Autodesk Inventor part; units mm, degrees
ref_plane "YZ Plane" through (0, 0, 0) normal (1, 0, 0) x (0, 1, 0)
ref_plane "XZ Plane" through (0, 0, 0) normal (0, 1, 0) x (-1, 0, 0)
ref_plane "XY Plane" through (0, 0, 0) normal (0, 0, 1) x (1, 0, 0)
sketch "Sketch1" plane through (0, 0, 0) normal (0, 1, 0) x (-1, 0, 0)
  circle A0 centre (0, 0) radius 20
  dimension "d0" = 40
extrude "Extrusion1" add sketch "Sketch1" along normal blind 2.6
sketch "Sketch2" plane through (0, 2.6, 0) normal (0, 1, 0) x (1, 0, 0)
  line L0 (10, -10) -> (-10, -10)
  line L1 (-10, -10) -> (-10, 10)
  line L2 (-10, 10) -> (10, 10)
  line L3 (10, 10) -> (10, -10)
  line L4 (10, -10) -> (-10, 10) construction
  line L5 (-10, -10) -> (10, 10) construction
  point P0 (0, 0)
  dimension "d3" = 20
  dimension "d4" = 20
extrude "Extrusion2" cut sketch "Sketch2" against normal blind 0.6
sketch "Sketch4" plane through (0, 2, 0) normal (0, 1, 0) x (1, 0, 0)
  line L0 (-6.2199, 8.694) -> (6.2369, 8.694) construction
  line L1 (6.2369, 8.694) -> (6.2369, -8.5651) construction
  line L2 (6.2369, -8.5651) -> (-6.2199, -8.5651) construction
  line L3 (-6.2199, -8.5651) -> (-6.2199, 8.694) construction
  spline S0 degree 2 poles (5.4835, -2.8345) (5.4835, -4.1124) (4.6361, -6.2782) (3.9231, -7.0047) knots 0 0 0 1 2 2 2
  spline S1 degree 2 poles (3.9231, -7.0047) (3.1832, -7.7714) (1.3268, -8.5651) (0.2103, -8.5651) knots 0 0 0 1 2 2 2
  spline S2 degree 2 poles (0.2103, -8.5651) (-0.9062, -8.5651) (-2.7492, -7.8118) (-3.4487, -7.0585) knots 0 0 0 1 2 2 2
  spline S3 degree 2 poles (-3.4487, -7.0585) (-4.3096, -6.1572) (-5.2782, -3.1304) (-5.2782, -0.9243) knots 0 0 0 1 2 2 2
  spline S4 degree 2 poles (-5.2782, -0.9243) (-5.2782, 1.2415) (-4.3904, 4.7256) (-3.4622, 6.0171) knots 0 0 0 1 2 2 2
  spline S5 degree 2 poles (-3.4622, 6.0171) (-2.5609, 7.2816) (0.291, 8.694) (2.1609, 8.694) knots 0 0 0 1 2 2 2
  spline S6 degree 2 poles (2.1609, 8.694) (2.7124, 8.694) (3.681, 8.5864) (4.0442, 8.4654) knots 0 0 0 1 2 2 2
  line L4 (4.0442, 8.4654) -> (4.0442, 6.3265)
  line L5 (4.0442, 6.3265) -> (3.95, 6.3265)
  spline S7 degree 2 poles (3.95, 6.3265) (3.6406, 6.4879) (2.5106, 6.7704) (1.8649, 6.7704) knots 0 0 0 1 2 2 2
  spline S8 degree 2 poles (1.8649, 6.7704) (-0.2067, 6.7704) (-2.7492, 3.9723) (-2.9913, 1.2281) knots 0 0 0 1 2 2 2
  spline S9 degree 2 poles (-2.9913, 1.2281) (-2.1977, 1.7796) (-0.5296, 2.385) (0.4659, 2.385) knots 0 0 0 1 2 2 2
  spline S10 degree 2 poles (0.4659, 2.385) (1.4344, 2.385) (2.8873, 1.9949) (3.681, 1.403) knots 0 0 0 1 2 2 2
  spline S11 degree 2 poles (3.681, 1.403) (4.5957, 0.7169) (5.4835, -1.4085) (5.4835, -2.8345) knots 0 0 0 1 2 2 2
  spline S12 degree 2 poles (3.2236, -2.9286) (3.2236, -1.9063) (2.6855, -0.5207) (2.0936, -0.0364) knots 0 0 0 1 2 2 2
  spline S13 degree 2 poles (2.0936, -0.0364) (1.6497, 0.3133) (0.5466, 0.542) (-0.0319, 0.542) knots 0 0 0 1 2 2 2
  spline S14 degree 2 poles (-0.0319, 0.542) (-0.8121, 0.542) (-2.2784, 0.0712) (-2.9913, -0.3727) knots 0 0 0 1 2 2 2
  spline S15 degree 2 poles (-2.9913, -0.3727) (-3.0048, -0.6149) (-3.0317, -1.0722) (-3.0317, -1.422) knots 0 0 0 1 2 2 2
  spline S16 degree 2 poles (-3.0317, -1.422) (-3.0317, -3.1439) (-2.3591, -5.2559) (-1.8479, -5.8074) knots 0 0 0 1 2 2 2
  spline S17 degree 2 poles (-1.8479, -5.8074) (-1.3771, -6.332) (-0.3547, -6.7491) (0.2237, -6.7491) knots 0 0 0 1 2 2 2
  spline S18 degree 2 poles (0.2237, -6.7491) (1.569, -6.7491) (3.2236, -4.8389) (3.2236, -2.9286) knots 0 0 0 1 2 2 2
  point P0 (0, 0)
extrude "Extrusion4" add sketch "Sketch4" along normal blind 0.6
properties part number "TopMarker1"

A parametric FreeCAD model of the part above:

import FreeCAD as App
import Part
import Sketcher

doc = App.newDocument("Part")
body = doc.addObject("PartDesign::Body", "Body")

# Sketch on XZ plane
sketch1 = doc.addObject("Sketcher::SketchObject", "Sketch")
body.addObject(sketch1)
sketch1.AttachmentSupport = (doc.XZ_Plane, [""])
sketch1.MapMode = "FlatFace"
sketch1.addGeometry(Part.Circle(App.Vector(0, 0, 0), App.Vector(0, 0, 1), 20), False)
sketch1.addConstraint([
    Sketcher.Constraint("Coincident", 0, 3, -1, 1),
    Sketcher.Constraint("Diameter", 0, 40.0),
])
pad1 = doc.addObject("PartDesign::Pad", "Pad")
body.addObject(pad1)
pad1.Profile = sketch1
pad1.Length = 2.6
pad1.Reversed = True

# Sketch on XZ plane
sketch2 = doc.addObject("Sketcher::SketchObject", "Sketch001")
body.addObject(sketch2)
sketch2.AttachmentSupport = (doc.XZ_Plane, [""])
sketch2.MapMode = "FlatFace"
sketch2.AttachmentOffset = App.Placement(App.Vector(0, 0, -2.6), App.Rotation())
sketch2.addGeometry([
    Part.LineSegment(App.Vector(-10, 10, 0), App.Vector(10, 10, 0)),
    Part.LineSegment(App.Vector(10, 10, 0), App.Vector(10, -10, 0)),
    Part.LineSegment(App.Vector(10, -10, 0), App.Vector(-10, -10, 0)),
    Part.LineSegment(App.Vector(-10, -10, 0), App.Vector(-10, 10, 0)),
], False)
sketch2.addConstraint([
    Sketcher.Constraint("Coincident", 0, 2, 1, 1),
    Sketcher.Constraint("Coincident", 1, 2, 2, 1),
    Sketcher.Constraint("Coincident", 2, 2, 3, 1),
    Sketcher.Constraint("Coincident", 3, 2, 0, 1),
    Sketcher.Constraint("Horizontal", 0),
    Sketcher.Constraint("Vertical", 1),
    Sketcher.Constraint("Horizontal", 2),
    Sketcher.Constraint("Vertical", 3),
    Sketcher.Constraint("Symmetric", 0, 2, 2, 2, -1, 1),
    Sketcher.Constraint("Equal", 2, 1),
    Sketcher.Constraint("DistanceX", 0, 1, 0, 2, 20.0),
])
pocket1 = doc.addObject("PartDesign::Pocket", "Pocket")
body.addObject(pocket1)
pocket1.Profile = sketch2
pocket1.Length = 0.6
pocket1.Reversed = True

# Sketch on XZ plane
sketch3 = doc.addObject("Sketcher::SketchObject", "Sketch002")
body.addObject(sketch3)
sketch3.AttachmentSupport = (doc.XZ_Plane, [""])
sketch3.MapMode = "FlatFace"
sketch3.AttachmentOffset = App.Placement(App.Vector(0, 0, -2), App.Rotation())
sketch3.addGeometry([
    Part.BSplineCurve([App.Vector(5.4835, 2.8345, 0), App.Vector(5.4835, 4.1124, 0), App.Vector(4.6361, 6.2782, 0), App.Vector(3.9231, 7.0047, 0)], [3, 1, 3], [0, 1, 2], False, 2, [1, 1, 1, 1], False),  # 0
    Part.BSplineCurve([App.Vector(3.681, -1.403, 0), App.Vector(4.5957, -0.7169, 0), App.Vector(5.4835, 1.4085, 0), App.Vector(5.4835, 2.8345, 0)], [3, 1, 3], [0, 1, 2], False, 2, [1, 1, 1, 1], False),  # 1
    Part.BSplineCurve([App.Vector(0.4659, -2.385, 0), App.Vector(1.4344, -2.385, 0), App.Vector(2.8873, -1.9949, 0), App.Vector(3.681, -1.403, 0)], [3, 1, 3], [0, 1, 2], False, 2, [1, 1, 1, 1], False),  # 2
    Part.BSplineCurve([App.Vector(-2.9913, -1.2281, 0), App.Vector(-2.1977, -1.7796, 0), App.Vector(-0.5296, -2.385, 0), App.Vector(0.4659, -2.385, 0)], [3, 1, 3], [0, 1, 2], False, 2, [1, 1, 1, 1], False),  # 3
    Part.BSplineCurve([App.Vector(1.8649, -6.7704, 0), App.Vector(-0.2067, -6.7704, 0), App.Vector(-2.7492, -3.9723, 0), App.Vector(-2.9913, -1.2281, 0)], [3, 1, 3], [0, 1, 2], False, 2, [1, 1, 1, 1], False),  # 4
    Part.BSplineCurve([App.Vector(3.95, -6.3265, 0), App.Vector(3.6406, -6.4879, 0), App.Vector(2.5106, -6.7704, 0), App.Vector(1.8649, -6.7704, 0)], [3, 1, 3], [0, 1, 2], False, 2, [1, 1, 1, 1], False),  # 5
    Part.LineSegment(App.Vector(3.95, -6.3265, 0), App.Vector(4.0442, -6.3265, 0)),  # 6
    Part.LineSegment(App.Vector(4.0442, -6.3265, 0), App.Vector(4.0442, -8.4654, 0)),  # 7
    Part.BSplineCurve([App.Vector(2.1609, -8.694, 0), App.Vector(2.7124, -8.694, 0), App.Vector(3.681, -8.5864, 0), App.Vector(4.0442, -8.4654, 0)], [3, 1, 3], [0, 1, 2], False, 2, [1, 1, 1, 1], False),  # 8
    Part.BSplineCurve([App.Vector(-3.4622, -6.0171, 0), App.Vector(-2.5609, -7.2816, 0), App.Vector(0.291, -8.694, 0), App.Vector(2.1609, -8.694, 0)], [3, 1, 3], [0, 1, 2], False, 2, [1, 1, 1, 1], False),  # 9
    Part.BSplineCurve([App.Vector(-5.2782, 0.9243, 0), App.Vector(-5.2782, -1.2415, 0), App.Vector(-4.3904, -4.7256, 0), App.Vector(-3.4622, -6.0171, 0)], [3, 1, 3], [0, 1, 2], False, 2, [1, 1, 1, 1], False),  # 10
    Part.BSplineCurve([App.Vector(-3.4487, 7.0585, 0), App.Vector(-4.3096, 6.1572, 0), App.Vector(-5.2782, 3.1304, 0), App.Vector(-5.2782, 0.9243, 0)], [3, 1, 3], [0, 1, 2], False, 2, [1, 1, 1, 1], False),  # 11
    Part.BSplineCurve([App.Vector(0.2103, 8.5651, 0), App.Vector(-0.9062, 8.5651, 0), App.Vector(-2.7492, 7.8118, 0), App.Vector(-3.4487, 7.0585, 0)], [3, 1, 3], [0, 1, 2], False, 2, [1, 1, 1, 1], False),  # 12
    Part.BSplineCurve([App.Vector(3.9231, 7.0047, 0), App.Vector(3.1832, 7.7714, 0), App.Vector(1.3268, 8.5651, 0), App.Vector(0.2103, 8.5651, 0)], [3, 1, 3], [0, 1, 2], False, 2, [1, 1, 1, 1], False),  # 13
    Part.BSplineCurve([App.Vector(3.2236, 2.9286, 0), App.Vector(3.2236, 1.9063, 0), App.Vector(2.6855, 0.5207, 0), App.Vector(2.0936, 0.0364, 0)], [3, 1, 3], [0, 1, 2], False, 2, [1, 1, 1, 1], False),  # 14
    Part.BSplineCurve([App.Vector(0.2237, 6.7491, 0), App.Vector(1.569, 6.7491, 0), App.Vector(3.2236, 4.8389, 0), App.Vector(3.2236, 2.9286, 0)], [3, 1, 3], [0, 1, 2], False, 2, [1, 1, 1, 1], False),  # 15
    Part.BSplineCurve([App.Vector(-1.8479, 5.8074, 0), App.Vector(-1.3771, 6.332, 0), App.Vector(-0.3547, 6.7491, 0), App.Vector(0.2237, 6.7491, 0)], [3, 1, 3], [0, 1, 2], False, 2, [1, 1, 1, 1], False),  # 16
    Part.BSplineCurve([App.Vector(-3.0317, 1.422, 0), App.Vector(-3.0317, 3.1439, 0), App.Vector(-2.3591, 5.2559, 0), App.Vector(-1.8479, 5.8074, 0)], [3, 1, 3], [0, 1, 2], False, 2, [1, 1, 1, 1], False),  # 17
    Part.BSplineCurve([App.Vector(-2.9913, 0.3727, 0), App.Vector(-3.0048, 0.6149, 0), App.Vector(-3.0317, 1.0722, 0), App.Vector(-3.0317, 1.422, 0)], [3, 1, 3], [0, 1, 2], False, 2, [1, 1, 1, 1], False),  # 18
    Part.BSplineCurve([App.Vector(-0.0319, -0.542, 0), App.Vector(-0.8121, -0.542, 0), App.Vector(-2.2784, -0.0712, 0), App.Vector(-2.9913, 0.3727, 0)], [3, 1, 3], [0, 1, 2], False, 2, [1, 1, 1, 1], False),  # 19
    Part.BSplineCurve([App.Vector(2.0936, 0.0364, 0), App.Vector(1.6497, -0.3133, 0), App.Vector(0.5466, -0.542, 0), App.Vector(-0.0319, -0.542, 0)], [3, 1, 3], [0, 1, 2], False, 2, [1, 1, 1, 1], False),  # 20
], False)
sketch3.addConstraint([
    Sketcher.Constraint("Block", 0),
    Sketcher.Constraint("Block", 1),
    Sketcher.Constraint("Block", 2),
    Sketcher.Constraint("Block", 3),
    Sketcher.Constraint("Block", 4),
    Sketcher.Constraint("Block", 5),
    Sketcher.Constraint("Block", 8),
    Sketcher.Constraint("Block", 9),
    Sketcher.Constraint("Block", 10),
    Sketcher.Constraint("Block", 11),
    Sketcher.Constraint("Block", 12),
    Sketcher.Constraint("Block", 13),
    Sketcher.Constraint("Block", 14),
    Sketcher.Constraint("Block", 15),
    Sketcher.Constraint("Block", 16),
    Sketcher.Constraint("Block", 17),
    Sketcher.Constraint("Block", 18),
    Sketcher.Constraint("Block", 19),
    Sketcher.Constraint("Block", 20),
    Sketcher.Constraint("Coincident", 5, 1, 6, 1),
    Sketcher.Constraint("Coincident", 6, 2, 7, 1),
    Sketcher.Constraint("Coincident", 7, 2, 8, 2),
    Sketcher.Constraint("Horizontal", 6),
    Sketcher.Constraint("Vertical", 7),
])
pad2 = doc.addObject("PartDesign::Pad", "Pad001")
body.addObject(pad2)
pad2.Profile = sketch3
pad2.Length = 0.6
pad2.Reversed = True

doc.recompute()
